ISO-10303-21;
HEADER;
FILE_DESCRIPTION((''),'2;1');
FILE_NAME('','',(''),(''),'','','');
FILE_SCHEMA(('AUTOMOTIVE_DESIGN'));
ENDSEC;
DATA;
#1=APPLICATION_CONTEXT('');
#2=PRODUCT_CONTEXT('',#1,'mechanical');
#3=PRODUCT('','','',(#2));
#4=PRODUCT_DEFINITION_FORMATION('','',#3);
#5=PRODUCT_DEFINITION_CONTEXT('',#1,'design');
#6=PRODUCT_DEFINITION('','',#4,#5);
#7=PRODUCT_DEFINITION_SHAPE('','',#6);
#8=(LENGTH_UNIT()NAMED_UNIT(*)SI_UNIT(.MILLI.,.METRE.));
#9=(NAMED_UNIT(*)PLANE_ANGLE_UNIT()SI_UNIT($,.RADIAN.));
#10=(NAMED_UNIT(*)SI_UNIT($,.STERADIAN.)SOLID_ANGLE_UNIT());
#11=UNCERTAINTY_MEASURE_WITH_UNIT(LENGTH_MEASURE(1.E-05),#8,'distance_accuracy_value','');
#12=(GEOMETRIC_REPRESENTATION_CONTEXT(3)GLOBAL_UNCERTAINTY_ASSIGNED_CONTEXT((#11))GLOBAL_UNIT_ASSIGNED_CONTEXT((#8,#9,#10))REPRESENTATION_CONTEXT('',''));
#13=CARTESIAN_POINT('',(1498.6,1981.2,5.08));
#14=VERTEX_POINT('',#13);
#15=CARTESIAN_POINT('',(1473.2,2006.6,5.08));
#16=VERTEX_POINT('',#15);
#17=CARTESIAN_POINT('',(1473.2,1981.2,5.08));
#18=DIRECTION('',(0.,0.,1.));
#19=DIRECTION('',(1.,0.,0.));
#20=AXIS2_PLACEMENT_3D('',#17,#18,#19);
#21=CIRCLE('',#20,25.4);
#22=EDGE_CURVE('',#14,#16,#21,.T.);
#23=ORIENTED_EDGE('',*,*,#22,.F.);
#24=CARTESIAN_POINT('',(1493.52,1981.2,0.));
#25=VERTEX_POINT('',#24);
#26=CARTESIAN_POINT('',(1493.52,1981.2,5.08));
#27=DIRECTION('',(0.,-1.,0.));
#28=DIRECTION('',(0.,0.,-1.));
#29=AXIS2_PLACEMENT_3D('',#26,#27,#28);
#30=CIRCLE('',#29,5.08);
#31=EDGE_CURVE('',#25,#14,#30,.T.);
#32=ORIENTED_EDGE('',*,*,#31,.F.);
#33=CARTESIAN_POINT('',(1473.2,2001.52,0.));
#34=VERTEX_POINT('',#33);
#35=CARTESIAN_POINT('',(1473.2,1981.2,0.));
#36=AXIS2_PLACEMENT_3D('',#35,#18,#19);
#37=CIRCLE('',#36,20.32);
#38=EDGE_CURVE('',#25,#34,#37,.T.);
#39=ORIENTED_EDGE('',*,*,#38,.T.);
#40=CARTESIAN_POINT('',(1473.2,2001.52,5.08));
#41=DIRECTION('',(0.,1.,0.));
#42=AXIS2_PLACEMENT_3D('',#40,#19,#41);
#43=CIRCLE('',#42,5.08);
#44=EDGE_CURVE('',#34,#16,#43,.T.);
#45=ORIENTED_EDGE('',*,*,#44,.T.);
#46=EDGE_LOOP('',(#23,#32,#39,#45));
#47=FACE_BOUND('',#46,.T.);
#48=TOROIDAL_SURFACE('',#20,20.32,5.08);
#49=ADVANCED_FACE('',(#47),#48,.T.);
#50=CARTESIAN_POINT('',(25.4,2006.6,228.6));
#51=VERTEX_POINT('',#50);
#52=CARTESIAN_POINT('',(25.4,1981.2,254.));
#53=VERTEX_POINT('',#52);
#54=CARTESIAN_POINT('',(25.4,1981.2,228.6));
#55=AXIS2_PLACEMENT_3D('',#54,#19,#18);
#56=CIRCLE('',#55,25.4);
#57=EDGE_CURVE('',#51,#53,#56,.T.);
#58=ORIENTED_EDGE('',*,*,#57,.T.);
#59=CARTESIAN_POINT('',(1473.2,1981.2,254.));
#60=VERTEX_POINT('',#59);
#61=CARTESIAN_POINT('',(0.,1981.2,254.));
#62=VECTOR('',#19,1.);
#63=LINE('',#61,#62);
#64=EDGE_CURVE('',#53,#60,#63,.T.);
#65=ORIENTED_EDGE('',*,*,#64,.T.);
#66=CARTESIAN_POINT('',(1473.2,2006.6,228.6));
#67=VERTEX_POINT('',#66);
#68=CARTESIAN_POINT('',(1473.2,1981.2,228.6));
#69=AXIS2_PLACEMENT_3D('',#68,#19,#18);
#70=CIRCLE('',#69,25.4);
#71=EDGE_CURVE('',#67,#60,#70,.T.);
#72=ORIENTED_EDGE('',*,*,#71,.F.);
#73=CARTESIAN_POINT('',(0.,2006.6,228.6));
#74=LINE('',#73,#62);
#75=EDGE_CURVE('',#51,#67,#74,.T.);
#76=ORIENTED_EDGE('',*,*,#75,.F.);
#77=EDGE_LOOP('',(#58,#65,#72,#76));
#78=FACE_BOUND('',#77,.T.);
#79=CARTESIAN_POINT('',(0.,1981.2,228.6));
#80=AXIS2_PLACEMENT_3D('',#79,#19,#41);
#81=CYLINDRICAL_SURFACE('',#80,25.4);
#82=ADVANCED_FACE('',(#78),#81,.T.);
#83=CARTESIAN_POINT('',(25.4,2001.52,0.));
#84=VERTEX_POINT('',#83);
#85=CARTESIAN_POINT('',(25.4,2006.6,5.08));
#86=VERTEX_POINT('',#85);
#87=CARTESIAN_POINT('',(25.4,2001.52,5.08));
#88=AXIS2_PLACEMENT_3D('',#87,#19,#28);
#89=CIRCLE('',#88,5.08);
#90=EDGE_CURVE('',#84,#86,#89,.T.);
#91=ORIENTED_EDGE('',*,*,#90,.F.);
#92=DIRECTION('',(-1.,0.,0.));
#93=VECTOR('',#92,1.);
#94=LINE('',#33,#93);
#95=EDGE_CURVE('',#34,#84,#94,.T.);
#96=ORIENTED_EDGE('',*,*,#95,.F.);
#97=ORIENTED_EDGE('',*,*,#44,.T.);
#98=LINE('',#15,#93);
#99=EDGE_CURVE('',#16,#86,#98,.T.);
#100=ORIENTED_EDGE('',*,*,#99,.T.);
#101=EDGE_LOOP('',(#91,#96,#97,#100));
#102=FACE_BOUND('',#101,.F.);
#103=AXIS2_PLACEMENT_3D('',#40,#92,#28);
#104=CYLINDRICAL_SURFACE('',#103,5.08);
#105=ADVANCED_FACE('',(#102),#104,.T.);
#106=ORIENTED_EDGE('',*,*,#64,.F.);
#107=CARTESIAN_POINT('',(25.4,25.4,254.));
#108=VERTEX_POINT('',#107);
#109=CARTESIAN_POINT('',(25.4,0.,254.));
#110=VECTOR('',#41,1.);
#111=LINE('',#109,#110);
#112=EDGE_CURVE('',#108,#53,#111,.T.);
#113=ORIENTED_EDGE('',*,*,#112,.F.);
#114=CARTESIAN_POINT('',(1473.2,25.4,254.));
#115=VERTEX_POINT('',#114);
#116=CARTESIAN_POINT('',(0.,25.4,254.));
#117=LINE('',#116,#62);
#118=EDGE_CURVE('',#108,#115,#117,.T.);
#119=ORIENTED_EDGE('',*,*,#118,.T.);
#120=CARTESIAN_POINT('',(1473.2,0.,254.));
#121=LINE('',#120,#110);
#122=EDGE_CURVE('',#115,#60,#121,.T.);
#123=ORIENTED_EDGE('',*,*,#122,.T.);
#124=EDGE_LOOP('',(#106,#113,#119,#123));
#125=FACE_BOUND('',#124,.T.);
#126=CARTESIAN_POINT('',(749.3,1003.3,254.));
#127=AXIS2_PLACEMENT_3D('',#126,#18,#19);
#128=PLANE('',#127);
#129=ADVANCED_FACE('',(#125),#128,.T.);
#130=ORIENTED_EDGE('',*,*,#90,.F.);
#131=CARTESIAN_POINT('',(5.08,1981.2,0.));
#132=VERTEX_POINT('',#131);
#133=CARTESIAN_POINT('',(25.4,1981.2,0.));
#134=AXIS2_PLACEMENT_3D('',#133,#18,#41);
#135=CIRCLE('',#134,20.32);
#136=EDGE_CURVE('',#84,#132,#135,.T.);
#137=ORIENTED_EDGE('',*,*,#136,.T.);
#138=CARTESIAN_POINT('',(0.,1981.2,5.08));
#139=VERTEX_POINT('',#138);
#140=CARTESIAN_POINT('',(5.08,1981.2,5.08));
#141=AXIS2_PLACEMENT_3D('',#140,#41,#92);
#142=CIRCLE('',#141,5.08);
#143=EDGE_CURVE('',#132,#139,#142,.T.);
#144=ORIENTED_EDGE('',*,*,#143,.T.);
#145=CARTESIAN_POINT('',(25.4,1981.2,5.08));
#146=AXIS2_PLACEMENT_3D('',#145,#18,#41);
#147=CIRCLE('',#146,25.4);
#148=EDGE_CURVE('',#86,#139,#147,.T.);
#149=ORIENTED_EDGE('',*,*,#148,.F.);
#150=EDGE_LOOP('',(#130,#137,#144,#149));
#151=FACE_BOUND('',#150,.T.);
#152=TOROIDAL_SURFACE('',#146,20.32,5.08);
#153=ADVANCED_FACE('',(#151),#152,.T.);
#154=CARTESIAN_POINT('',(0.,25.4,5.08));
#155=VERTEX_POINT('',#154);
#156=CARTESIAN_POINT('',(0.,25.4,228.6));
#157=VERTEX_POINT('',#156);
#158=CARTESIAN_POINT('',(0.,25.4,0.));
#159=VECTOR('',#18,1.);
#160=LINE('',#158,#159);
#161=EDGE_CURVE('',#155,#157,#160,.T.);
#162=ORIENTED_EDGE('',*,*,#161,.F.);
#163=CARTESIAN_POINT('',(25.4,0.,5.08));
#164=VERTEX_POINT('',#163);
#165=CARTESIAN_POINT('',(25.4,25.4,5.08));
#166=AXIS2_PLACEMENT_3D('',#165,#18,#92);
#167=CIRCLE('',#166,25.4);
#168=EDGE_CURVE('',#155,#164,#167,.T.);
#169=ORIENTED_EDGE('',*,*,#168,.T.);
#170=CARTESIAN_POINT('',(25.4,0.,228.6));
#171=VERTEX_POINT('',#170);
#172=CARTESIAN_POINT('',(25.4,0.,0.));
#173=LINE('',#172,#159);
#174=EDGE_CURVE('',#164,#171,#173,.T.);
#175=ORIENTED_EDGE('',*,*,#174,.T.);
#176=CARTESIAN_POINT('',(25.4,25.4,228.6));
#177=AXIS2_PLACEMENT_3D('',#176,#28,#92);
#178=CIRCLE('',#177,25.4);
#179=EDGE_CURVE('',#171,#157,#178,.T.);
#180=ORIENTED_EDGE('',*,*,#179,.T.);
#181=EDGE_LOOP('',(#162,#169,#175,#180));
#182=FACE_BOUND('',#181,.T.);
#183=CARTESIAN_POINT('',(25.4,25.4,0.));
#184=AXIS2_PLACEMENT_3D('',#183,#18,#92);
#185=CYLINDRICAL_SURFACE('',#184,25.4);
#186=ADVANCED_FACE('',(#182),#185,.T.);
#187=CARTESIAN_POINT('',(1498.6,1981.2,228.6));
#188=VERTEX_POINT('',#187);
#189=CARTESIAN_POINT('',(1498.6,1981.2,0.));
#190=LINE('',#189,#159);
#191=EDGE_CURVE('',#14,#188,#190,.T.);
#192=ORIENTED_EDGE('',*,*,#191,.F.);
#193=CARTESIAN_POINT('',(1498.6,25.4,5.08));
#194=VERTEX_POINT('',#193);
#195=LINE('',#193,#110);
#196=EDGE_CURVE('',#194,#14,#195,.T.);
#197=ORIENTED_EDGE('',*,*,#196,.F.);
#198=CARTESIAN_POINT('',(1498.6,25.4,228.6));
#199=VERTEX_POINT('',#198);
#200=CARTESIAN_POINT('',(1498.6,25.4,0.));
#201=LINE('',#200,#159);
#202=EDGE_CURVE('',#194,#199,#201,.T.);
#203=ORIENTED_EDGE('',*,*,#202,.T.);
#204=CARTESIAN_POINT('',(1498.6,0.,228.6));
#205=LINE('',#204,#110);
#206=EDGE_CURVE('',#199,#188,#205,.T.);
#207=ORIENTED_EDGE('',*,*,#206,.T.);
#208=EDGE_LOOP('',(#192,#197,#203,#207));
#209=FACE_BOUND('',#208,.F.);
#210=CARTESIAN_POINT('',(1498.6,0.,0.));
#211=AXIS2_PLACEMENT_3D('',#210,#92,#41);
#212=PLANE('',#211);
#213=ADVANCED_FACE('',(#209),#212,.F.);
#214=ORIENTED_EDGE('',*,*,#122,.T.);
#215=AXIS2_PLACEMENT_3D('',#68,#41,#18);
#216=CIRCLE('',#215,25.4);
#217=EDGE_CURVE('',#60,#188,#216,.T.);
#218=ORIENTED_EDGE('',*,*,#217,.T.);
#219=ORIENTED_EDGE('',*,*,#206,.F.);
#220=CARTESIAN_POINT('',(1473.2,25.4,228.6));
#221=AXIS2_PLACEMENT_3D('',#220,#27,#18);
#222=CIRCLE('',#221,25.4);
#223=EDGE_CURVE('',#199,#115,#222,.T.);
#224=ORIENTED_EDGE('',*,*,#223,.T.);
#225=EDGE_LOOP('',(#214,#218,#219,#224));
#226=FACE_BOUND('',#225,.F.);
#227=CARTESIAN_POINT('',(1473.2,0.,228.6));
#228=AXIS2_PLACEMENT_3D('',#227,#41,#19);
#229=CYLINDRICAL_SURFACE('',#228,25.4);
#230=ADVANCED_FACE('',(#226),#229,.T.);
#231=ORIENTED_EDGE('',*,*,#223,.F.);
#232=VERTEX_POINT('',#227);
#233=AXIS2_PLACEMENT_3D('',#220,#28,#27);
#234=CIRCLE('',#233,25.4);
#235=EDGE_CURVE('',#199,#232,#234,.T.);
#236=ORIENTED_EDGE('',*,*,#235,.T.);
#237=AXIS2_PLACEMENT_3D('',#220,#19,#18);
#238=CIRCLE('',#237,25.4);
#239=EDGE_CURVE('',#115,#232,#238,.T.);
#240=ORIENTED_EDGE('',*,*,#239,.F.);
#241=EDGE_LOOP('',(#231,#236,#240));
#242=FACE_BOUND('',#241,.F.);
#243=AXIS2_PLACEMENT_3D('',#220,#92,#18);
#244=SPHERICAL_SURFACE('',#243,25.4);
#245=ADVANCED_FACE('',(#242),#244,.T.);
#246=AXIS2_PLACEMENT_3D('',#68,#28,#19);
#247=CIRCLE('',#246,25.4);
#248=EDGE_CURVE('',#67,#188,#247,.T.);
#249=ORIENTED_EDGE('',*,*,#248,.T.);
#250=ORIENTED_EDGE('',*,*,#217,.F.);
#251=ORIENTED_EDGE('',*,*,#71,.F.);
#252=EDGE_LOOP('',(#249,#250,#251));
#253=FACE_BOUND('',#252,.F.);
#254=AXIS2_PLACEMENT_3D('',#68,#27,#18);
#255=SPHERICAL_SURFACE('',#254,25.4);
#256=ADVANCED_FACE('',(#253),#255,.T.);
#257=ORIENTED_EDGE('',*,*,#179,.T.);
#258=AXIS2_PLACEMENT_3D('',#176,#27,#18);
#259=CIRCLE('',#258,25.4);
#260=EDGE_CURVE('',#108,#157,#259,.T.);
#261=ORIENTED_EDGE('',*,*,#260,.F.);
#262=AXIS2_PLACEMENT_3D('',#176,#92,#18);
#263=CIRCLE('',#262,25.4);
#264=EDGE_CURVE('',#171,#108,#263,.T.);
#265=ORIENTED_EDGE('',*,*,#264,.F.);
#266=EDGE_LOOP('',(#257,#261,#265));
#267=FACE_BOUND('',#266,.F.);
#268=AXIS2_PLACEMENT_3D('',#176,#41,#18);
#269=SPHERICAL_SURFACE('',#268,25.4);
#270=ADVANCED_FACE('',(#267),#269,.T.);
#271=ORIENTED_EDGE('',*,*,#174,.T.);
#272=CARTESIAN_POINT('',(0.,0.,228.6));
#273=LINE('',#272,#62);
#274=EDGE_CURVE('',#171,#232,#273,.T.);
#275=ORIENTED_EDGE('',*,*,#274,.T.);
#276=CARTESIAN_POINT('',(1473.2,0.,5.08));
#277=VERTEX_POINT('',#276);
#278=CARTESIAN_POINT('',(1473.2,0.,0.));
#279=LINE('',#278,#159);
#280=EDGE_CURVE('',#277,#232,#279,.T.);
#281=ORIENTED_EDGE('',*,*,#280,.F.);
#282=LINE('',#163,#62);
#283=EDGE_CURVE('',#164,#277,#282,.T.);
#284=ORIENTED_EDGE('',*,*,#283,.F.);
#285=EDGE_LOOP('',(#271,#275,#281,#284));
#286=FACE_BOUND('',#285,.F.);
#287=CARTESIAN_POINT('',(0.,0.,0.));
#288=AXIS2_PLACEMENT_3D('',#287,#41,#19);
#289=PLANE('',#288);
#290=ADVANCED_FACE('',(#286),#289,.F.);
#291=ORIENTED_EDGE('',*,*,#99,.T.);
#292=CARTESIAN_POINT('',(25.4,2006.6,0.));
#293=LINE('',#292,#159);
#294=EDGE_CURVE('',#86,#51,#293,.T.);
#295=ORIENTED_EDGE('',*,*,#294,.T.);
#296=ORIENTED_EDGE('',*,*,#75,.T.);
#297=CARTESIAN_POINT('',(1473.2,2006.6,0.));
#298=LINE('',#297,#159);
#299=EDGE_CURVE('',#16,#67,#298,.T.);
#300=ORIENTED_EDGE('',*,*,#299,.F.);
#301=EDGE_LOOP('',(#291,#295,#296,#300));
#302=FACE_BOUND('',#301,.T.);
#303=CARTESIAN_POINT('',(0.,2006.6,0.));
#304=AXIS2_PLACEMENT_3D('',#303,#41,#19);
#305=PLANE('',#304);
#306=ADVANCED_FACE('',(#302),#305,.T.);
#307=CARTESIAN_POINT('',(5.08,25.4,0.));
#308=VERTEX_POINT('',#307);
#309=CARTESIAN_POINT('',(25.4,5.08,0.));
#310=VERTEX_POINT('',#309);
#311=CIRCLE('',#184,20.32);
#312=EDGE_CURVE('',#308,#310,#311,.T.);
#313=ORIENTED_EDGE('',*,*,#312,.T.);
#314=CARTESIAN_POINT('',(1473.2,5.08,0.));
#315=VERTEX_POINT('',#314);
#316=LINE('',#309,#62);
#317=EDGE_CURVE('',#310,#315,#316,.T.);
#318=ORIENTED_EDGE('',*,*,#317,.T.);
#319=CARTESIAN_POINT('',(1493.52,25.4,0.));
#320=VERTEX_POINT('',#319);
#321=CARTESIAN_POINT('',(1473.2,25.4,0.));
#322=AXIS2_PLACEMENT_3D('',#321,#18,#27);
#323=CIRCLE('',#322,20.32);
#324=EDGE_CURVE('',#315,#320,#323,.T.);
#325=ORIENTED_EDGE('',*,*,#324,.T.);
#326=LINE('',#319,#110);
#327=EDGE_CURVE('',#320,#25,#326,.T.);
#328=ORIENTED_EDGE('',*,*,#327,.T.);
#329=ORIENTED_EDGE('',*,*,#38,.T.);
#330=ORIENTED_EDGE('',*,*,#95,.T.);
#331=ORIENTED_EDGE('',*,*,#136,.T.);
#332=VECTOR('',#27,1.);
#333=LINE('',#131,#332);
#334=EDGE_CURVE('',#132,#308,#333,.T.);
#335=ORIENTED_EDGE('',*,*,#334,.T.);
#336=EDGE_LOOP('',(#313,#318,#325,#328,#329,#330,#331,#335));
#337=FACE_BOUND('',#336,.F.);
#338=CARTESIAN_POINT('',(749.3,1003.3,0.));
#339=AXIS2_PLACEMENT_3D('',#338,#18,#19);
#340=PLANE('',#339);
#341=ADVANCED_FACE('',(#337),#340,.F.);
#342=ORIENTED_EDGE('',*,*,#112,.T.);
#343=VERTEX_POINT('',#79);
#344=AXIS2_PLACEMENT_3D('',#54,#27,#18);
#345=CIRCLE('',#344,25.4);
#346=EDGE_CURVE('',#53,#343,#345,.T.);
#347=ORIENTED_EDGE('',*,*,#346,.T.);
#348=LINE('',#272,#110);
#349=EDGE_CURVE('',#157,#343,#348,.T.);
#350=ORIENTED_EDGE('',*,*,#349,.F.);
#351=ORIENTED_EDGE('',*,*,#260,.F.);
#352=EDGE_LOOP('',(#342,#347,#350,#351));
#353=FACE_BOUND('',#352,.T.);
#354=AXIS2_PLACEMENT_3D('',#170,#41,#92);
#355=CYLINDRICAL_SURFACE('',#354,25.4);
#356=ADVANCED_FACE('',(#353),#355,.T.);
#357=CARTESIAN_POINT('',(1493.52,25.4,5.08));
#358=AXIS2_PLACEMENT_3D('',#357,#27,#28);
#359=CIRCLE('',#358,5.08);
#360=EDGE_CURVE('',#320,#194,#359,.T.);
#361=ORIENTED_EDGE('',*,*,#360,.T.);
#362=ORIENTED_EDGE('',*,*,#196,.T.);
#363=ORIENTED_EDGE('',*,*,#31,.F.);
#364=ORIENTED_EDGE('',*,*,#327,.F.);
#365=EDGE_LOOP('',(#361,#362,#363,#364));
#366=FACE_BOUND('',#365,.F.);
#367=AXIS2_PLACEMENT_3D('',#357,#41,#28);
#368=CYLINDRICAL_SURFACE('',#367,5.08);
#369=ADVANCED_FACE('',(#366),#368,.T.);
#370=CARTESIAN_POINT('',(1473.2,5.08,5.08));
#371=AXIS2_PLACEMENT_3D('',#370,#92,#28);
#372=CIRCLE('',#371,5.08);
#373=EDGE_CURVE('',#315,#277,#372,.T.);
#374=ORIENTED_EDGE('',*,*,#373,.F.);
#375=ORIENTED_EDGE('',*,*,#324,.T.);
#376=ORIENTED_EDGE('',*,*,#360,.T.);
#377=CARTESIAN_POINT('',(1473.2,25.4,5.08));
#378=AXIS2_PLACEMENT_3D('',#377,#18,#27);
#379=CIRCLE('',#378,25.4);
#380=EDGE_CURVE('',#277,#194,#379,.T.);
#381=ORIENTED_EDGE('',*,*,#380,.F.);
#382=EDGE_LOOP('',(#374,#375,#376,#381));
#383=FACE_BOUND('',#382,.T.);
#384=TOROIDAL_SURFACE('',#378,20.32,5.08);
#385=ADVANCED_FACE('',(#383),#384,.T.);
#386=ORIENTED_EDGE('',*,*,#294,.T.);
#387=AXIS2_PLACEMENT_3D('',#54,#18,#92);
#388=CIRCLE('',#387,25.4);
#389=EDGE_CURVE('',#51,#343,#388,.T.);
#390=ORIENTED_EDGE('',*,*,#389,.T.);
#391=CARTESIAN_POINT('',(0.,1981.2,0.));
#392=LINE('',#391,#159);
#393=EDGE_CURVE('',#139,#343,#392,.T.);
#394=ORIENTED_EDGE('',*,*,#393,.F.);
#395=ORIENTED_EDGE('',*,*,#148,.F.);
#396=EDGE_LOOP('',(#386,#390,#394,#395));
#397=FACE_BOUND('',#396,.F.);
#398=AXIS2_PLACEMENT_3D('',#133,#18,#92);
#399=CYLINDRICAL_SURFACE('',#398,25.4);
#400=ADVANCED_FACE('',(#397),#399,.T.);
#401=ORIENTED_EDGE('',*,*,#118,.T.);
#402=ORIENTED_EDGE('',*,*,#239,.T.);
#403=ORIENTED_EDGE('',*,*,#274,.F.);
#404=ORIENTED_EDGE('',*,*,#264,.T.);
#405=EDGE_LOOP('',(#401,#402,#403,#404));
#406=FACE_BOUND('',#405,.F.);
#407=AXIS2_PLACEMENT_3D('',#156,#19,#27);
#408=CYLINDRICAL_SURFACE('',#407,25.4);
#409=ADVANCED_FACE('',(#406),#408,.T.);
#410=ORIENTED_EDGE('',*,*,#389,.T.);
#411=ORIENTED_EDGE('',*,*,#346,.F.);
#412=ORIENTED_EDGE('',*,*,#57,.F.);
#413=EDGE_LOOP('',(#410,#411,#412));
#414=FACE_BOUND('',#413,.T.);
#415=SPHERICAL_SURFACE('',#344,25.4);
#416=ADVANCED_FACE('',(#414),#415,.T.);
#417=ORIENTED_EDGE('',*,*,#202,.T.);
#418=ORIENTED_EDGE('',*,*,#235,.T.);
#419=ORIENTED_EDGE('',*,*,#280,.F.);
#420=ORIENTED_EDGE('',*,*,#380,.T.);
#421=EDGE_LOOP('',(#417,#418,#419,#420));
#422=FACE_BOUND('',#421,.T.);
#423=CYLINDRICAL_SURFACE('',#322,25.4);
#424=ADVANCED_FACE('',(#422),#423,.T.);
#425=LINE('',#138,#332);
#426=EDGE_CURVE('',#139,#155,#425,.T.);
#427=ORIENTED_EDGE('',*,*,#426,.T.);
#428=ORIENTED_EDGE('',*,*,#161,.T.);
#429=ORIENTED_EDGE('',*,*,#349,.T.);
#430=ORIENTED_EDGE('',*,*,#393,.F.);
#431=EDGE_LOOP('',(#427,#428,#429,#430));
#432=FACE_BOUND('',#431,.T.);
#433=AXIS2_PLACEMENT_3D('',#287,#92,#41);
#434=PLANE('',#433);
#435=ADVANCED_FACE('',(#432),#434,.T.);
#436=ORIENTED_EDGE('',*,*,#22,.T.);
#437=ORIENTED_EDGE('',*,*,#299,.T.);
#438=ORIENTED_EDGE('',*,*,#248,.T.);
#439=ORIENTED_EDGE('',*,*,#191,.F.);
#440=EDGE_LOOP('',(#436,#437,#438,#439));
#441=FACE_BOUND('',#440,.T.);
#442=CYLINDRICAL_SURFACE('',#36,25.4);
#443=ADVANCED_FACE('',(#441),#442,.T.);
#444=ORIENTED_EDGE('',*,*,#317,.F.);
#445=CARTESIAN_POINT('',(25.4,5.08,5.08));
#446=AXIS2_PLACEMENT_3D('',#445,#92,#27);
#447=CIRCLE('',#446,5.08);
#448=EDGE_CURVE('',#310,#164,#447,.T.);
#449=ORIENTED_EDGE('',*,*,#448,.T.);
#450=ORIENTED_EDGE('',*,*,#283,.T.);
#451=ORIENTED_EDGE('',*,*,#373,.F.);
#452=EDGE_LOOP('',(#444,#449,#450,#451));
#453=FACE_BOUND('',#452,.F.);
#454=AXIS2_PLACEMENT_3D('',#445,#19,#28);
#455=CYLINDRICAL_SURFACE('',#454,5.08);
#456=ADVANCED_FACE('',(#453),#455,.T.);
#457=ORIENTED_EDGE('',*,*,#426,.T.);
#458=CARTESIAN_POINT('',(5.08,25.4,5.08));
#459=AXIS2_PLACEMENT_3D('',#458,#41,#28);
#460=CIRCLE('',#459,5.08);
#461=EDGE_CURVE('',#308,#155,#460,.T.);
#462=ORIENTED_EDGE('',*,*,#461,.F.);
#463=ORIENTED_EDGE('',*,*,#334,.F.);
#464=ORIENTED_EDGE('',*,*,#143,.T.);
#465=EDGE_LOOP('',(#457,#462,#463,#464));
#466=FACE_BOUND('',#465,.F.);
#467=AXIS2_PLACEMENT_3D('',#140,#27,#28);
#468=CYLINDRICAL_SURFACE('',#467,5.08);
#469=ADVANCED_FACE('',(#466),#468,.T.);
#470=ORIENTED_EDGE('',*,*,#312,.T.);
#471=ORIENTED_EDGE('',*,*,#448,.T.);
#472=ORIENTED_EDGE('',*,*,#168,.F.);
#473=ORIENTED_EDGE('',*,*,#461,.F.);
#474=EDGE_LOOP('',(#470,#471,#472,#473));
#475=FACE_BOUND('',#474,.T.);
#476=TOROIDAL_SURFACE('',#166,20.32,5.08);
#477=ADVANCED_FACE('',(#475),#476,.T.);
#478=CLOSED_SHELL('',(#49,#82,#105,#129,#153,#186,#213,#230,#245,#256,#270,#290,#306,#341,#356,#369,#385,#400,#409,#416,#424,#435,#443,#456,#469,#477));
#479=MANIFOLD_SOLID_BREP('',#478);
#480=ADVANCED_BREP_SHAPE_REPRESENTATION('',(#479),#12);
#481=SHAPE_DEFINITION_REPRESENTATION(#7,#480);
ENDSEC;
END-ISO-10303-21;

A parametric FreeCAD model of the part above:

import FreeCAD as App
import Part
import Sketcher

V = App.Vector
Q = App.Units.Quantity


def edges_at(feature, points):
    """Names of the edges that pass closest to the given points."""
    edges = feature.Shape.Edges
    near = lambda p: min(range(len(edges)), key=lambda i: edges[i].distToShape(Part.Vertex(*p))[0])
    return sorted({f"Edge{near(p) + 1}" for p in points})


def add_polygon(sketch, points):
    """Adds a closed chain of lines whose ends are joined by coincident constraints."""
    first, n = sketch.GeometryCount, len(points)
    for a, b in zip(points, points[1:] + points[:1]):
        sketch.addGeometry(Part.LineSegment(App.Vector(*a, 0), App.Vector(*b, 0)), False)
    for i in range(n):
        sketch.addConstraint(Sketcher.Constraint("Coincident", first + i, 2, first + (i + 1) % n, 1))

doc = App.newDocument("Part")
body = doc.addObject("PartDesign::Body", "Body")

sketch1 = body.newObject("Sketcher::SketchObject", "Sketch")
sketch1.AttachmentSupport = (doc.getObject("XY_Plane"), [""])
sketch1.MapMode = "FlatFace"
add_polygon(sketch1, [(0, 2007), (0, 0), (1499, 0), (1499, 2007)])
sketch1.addConstraint(Sketcher.Constraint("Vertical", 0))
sketch1.addConstraint(Sketcher.Constraint("Horizontal", 1))
sketch1.addConstraint(Sketcher.Constraint("Vertical", 2))
sketch1.addConstraint(Sketcher.Constraint("Horizontal", 3))
sketch1.addConstraint(Sketcher.Constraint("Coincident", 0, 2, -1, 1))
sketch1.addConstraint(Sketcher.Constraint("DistanceX", 1, 1, 1, 2, Q("59 in")))
sketch1.addConstraint(Sketcher.Constraint("DistanceY", 0, 2, 0, 1, Q("79 in")))
pad1 = body.newObject("PartDesign::Pad", "Pad")
pad1.Profile = sketch1
pad1.Length = Q("10 in")
doc.recompute()

fillet = body.newObject("PartDesign::Fillet", "Fillet")
fillet.Base = (pad1, edges_at(pad1, [
    (0, 1003.3, 254),
    (749.3, 0, 254),
    (1498.6, 1003.3, 254),
    (749.3, 2006.6, 254),
    (1498.6, 0, 127),
    (0, 0, 127),
    (1498.6, 2006.6, 127),
    (0, 2006.6, 127),
]))
fillet.Radius = Q("1 in")
doc.recompute()

fillet2 = body.newObject("PartDesign::Fillet", "Fillet001")
fillet2.Base = (fillet, edges_at(fillet, [
    (1498.6, 1003.3, 0),
    (749.3, 0, 0),
    (0, 1003.3, 0),
    (749.3, 2006.6, 0),
]))
fillet2.Radius = Q("0.2 in")

doc.recompute()
